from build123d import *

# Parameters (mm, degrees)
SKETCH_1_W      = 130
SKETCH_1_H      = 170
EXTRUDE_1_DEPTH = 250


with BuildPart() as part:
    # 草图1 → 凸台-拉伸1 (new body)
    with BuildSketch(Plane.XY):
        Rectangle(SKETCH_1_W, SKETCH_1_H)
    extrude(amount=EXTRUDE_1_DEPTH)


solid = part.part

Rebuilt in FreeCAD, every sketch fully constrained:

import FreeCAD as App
import Part
import Sketcher
from FreeCAD import Vector


def add_polygon(sketch, points):
    """Adds a closed chain of lines whose ends are joined by coincident constraints."""
    first, n = sketch.GeometryCount, len(points)
    for a, b in zip(points, points[1:] + points[:1]):
        sketch.addGeometry(Part.LineSegment(App.Vector(*a, 0), App.Vector(*b, 0)), False)
    for i in range(n):
        sketch.addConstraint(Sketcher.Constraint("Coincident", first + i, 2, first + (i + 1) % n, 1))

doc = App.newDocument("Part")
body = doc.addObject("PartDesign::Body", "Body")

sketch1 = body.newObject("Sketcher::SketchObject", "Sketch")
sketch1.AttachmentSupport = (doc.getObject("XY_Plane"), [""])
sketch1.MapMode = "FlatFace"
add_polygon(sketch1, [(-65, 85), (-65, -85), (65, -85), (65, 85)])
sketch1.addConstraint([
    Sketcher.Constraint("Vertical", 0),
    Sketcher.Constraint("Horizontal", 1),
    Sketcher.Constraint("Vertical", 2),
    Sketcher.Constraint("Horizontal", 3),
    Sketcher.Constraint("Symmetric", 0, 2, 2, 2, -1, 1),
    Sketcher.Constraint("DistanceX", 1, 1, 1, 2, 130.0),
    Sketcher.Constraint("DistanceY", 0, 2, 0, 1, 170.0),
])
pad1 = body.newObject("PartDesign::Pad", "Pad")
pad1.Profile = sketch1
pad1.Length = 250

doc.recompute()
